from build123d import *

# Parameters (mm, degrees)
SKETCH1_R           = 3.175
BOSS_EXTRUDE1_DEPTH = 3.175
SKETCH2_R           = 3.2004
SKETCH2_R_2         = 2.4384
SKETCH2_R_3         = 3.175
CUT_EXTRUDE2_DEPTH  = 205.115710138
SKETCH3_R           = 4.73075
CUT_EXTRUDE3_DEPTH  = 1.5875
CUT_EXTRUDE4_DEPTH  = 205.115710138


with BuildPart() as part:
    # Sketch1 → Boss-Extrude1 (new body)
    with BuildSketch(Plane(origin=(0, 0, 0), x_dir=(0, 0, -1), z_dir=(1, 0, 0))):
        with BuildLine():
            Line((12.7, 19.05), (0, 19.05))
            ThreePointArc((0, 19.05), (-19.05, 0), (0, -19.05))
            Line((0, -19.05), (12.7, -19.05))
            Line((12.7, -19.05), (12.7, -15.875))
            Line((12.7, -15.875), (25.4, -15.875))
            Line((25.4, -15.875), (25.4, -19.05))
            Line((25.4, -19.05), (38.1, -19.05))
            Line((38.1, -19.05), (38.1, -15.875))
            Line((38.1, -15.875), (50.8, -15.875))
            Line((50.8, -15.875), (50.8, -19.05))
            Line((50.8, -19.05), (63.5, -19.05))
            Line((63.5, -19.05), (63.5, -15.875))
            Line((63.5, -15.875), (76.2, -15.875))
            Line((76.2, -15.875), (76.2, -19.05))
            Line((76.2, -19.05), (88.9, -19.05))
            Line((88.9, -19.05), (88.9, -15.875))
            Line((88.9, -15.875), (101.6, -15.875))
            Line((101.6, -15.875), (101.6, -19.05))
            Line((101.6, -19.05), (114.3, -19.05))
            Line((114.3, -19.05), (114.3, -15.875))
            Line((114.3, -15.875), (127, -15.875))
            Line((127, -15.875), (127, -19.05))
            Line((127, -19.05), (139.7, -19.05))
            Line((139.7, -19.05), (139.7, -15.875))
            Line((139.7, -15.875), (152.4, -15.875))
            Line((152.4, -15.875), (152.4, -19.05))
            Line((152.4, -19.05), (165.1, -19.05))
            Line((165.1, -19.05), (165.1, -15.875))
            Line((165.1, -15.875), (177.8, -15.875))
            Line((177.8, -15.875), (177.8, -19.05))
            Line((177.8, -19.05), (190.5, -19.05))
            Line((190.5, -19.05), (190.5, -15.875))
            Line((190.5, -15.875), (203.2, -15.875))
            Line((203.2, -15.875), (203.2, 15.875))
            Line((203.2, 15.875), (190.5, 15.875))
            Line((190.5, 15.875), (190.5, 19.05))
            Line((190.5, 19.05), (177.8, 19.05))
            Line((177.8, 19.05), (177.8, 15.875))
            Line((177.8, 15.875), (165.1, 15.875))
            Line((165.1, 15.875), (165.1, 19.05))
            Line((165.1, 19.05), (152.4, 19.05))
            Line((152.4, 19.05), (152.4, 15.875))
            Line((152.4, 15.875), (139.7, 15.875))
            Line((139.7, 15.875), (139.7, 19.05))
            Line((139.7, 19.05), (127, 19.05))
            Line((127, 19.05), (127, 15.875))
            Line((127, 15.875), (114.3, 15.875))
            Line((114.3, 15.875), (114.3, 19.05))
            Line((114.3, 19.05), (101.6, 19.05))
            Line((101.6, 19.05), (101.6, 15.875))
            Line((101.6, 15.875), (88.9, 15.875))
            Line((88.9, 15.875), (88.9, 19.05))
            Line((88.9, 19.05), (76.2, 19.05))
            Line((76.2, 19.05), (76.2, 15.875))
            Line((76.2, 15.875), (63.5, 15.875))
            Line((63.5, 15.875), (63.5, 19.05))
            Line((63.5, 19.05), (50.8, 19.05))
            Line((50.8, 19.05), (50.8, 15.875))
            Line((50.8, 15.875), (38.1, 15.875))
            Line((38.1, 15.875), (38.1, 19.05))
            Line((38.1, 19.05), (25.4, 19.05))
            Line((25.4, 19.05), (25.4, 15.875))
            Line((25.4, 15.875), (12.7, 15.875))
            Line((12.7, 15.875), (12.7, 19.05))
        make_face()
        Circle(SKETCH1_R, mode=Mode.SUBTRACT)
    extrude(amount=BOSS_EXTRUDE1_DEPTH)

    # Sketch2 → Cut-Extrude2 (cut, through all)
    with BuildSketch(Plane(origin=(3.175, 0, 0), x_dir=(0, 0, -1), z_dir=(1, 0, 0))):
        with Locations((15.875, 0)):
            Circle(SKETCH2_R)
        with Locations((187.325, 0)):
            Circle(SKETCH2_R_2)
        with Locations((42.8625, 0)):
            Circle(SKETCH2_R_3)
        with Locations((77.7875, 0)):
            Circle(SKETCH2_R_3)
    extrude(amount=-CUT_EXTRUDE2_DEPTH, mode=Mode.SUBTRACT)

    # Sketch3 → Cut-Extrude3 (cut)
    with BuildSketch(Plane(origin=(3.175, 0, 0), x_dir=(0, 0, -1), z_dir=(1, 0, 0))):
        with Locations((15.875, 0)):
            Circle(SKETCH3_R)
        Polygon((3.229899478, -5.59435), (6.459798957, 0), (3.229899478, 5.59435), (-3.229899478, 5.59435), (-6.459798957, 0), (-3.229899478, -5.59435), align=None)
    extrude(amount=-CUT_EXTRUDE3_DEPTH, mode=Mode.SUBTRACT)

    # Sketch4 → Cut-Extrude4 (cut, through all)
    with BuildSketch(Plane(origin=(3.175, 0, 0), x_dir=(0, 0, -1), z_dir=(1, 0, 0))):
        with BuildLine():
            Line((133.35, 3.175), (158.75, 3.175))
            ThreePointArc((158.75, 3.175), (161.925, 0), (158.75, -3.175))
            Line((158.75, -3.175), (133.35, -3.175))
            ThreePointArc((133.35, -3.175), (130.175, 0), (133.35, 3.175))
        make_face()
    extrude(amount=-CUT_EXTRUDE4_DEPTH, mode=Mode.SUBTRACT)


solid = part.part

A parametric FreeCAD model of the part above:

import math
import FreeCAD as App
import Part
import Sketcher
Q = App.Units.Quantity

doc = App.newDocument("Part")
body = doc.addObject("PartDesign::Body", "Body")

sketch1 = body.newObject("Sketcher::SketchObject", "Sketch")
sketch1.AttachmentSupport = (doc.getObject("YZ_Plane"), [""])
sketch1.MapMode = "FlatFace"
sketch1.addGeometry([
    Part.LineSegment(App.Vector(19.1, -12.7, 0), App.Vector(19.1, 0, 0)),
    Part.ArcOfCircle(Part.Circle(App.Vector(0, 0, 0), App.Vector(0, 0, 1), 19.1), math.radians(0), math.radians(180)),
    Part.LineSegment(App.Vector(-19.1, 0, 0), App.Vector(-19.1, -12.7, 0)),
    Part.LineSegment(App.Vector(-19.1, -12.7, 0), App.Vector(-15.9, -12.7, 0)),
    Part.LineSegment(App.Vector(-15.9, -12.7, 0), App.Vector(-15.9, -25.4, 0)),
    Part.LineSegment(App.Vector(-15.9, -25.4, 0), App.Vector(-19.1, -25.4, 0)),
    Part.LineSegment(App.Vector(-19.1, -25.4, 0), App.Vector(-19.1, -38.1, 0)),
    Part.LineSegment(App.Vector(-19.1, -38.1, 0), App.Vector(-15.9, -38.1, 0)),
    Part.LineSegment(App.Vector(-15.9, -38.1, 0), App.Vector(-15.9, -50.8, 0)),
    Part.LineSegment(App.Vector(-15.9, -50.8, 0), App.Vector(-19.1, -50.8, 0)),
    Part.LineSegment(App.Vector(-19.1, -50.8, 0), App.Vector(-19.1, -63.5, 0)),
    Part.LineSegment(App.Vector(-19.1, -63.5, 0), App.Vector(-15.9, -63.5, 0)),
    Part.LineSegment(App.Vector(-15.9, -63.5, 0), App.Vector(-15.9, -76.2, 0)),
    Part.LineSegment(App.Vector(-15.9, -76.2, 0), App.Vector(-19.1, -76.2, 0)),
    Part.LineSegment(App.Vector(-19.1, -76.2, 0), App.Vector(-19.1, -88.9, 0)),
    Part.LineSegment(App.Vector(-19.1, -88.9, 0), App.Vector(-15.9, -88.9, 0)),
    Part.LineSegment(App.Vector(-15.9, -88.9, 0), App.Vector(-15.9, -101.6, 0)),
    Part.LineSegment(App.Vector(-15.9, -101.6, 0), App.Vector(-19.1, -101.6, 0)),
    Part.LineSegment(App.Vector(-19.1, -101.6, 0), App.Vector(-19.1, -114.3, 0)),
    Part.LineSegment(App.Vector(-19.1, -114.3, 0), App.Vector(-15.9, -114.3, 0)),
    Part.LineSegment(App.Vector(-15.9, -114.3, 0), App.Vector(-15.9, -127, 0)),
    Part.LineSegment(App.Vector(-15.9, -127, 0), App.Vector(-19.1, -127, 0)),
    Part.LineSegment(App.Vector(-19.1, -127, 0), App.Vector(-19.1, -139.7, 0)),
    Part.LineSegment(App.Vector(-19.1, -139.7, 0), App.Vector(-15.9, -139.7, 0)),
    Part.LineSegment(App.Vector(-15.9, -139.7, 0), App.Vector(-15.9, -152.4, 0)),
    Part.LineSegment(App.Vector(-15.9, -152.4, 0), App.Vector(-19.1, -152.4, 0)),
    Part.LineSegment(App.Vector(-19.1, -152.4, 0), App.Vector(-19.1, -165.1, 0)),
    Part.LineSegment(App.Vector(-19.1, -165.1, 0), App.Vector(-15.9, -165.1, 0)),
    Part.LineSegment(App.Vector(-15.9, -165.1, 0), App.Vector(-15.9, -177.8, 0)),
    Part.LineSegment(App.Vector(-15.9, -177.8, 0), App.Vector(-19.1, -177.8, 0)),
    Part.LineSegment(App.Vector(-19.1, -177.8, 0), App.Vector(-19.1, -190.5, 0)),
    Part.LineSegment(App.Vector(-19.1, -190.5, 0), App.Vector(-15.9, -190.5, 0)),
    Part.LineSegment(App.Vector(-15.9, -190.5, 0), App.Vector(-15.9, -203.2, 0)),
    Part.LineSegment(App.Vector(-15.9, -203.2, 0), App.Vector(15.9, -203.2, 0)),
    Part.LineSegment(App.Vector(15.9, -203.2, 0), App.Vector(15.9, -190.5, 0)),
    Part.LineSegment(App.Vector(15.9, -190.5, 0), App.Vector(19.1, -190.5, 0)),
    Part.LineSegment(App.Vector(19.1, -190.5, 0), App.Vector(19.1, -177.8, 0)),
    Part.LineSegment(App.Vector(19.1, -177.8, 0), App.Vector(15.9, -177.8, 0)),
    Part.LineSegment(App.Vector(15.9, -177.8, 0), App.Vector(15.9, -165.1, 0)),
    Part.LineSegment(App.Vector(15.9, -165.1, 0), App.Vector(19.1, -165.1, 0)),
    Part.LineSegment(App.Vector(19.1, -165.1, 0), App.Vector(19.1, -152.4, 0)),
    Part.LineSegment(App.Vector(19.1, -152.4, 0), App.Vector(15.9, -152.4, 0)),
    Part.LineSegment(App.Vector(15.9, -152.4, 0), App.Vector(15.9, -139.7, 0)),
    Part.LineSegment(App.Vector(15.9, -139.7, 0), App.Vector(19.1, -139.7, 0)),
    Part.LineSegment(App.Vector(19.1, -139.7, 0), App.Vector(19.1, -127, 0)),
    Part.LineSegment(App.Vector(19.1, -127, 0), App.Vector(15.9, -127, 0)),
    Part.LineSegment(App.Vector(15.9, -127, 0), App.Vector(15.9, -114.3, 0)),
    Part.LineSegment(App.Vector(15.9, -114.3, 0), App.Vector(19.1, -114.3, 0)),
    Part.LineSegment(App.Vector(19.1, -114.3, 0), App.Vector(19.1, -101.6, 0)),
    Part.LineSegment(App.Vector(19.1, -101.6, 0), App.Vector(15.9, -101.6, 0)),
    Part.LineSegment(App.Vector(15.9, -101.6, 0), App.Vector(15.9, -88.9, 0)),
    Part.LineSegment(App.Vector(15.9, -88.9, 0), App.Vector(19.1, -88.9, 0)),
    Part.LineSegment(App.Vector(19.1, -88.9, 0), App.Vector(19.1, -76.2, 0)),
    Part.LineSegment(App.Vector(19.1, -76.2, 0), App.Vector(15.9, -76.2, 0)),
    Part.LineSegment(App.Vector(15.9, -76.2, 0), App.Vector(15.9, -63.5, 0)),
    Part.LineSegment(App.Vector(15.9, -63.5, 0), App.Vector(19.1, -63.5, 0)),
    Part.LineSegment(App.Vector(19.1, -63.5, 0), App.Vector(19.1, -50.8, 0)),
    Part.LineSegment(App.Vector(19.1, -50.8, 0), App.Vector(15.9, -50.8, 0)),
    Part.LineSegment(App.Vector(15.9, -50.8, 0), App.Vector(15.9, -38.1, 0)),
    Part.LineSegment(App.Vector(15.9, -38.1, 0), App.Vector(19.1, -38.1, 0)),
    Part.LineSegment(App.Vector(19.1, -38.1, 0), App.Vector(19.1, -25.4, 0)),
    Part.LineSegment(App.Vector(19.1, -25.4, 0), App.Vector(15.9, -25.4, 0)),
    Part.LineSegment(App.Vector(15.9, -25.4, 0), App.Vector(15.9, -12.7, 0)),
    Part.LineSegment(App.Vector(15.9, -12.7, 0), App.Vector(19.1, -12.7, 0)),
    Part.Circle(App.Vector(0, 0, 0), App.Vector(0, 0, 1), 3.2),
], False)
sketch1.addConstraint([
    Sketcher.Constraint("Tangent", 0, 2, 1, 1),
    Sketcher.Constraint("Tangent", 1, 2, 2, 1),
    Sketcher.Constraint("Coincident", 2, 2, 3, 1),
    Sketcher.Constraint("Coincident", 3, 2, 4, 1),
    Sketcher.Constraint("Coincident", 4, 2, 5, 1),
    Sketcher.Constraint("Coincident", 5, 2, 6, 1),
    Sketcher.Constraint("Coincident", 6, 2, 7, 1),
    Sketcher.Constraint("Coincident", 7, 2, 8, 1),
    Sketcher.Constraint("Coincident", 8, 2, 9, 1),
    Sketcher.Constraint("Coincident", 9, 2, 10, 1),
    Sketcher.Constraint("Coincident", 10, 2, 11, 1),
    Sketcher.Constraint("Coincident", 11, 2, 12, 1),
    Sketcher.Constraint("Coincident", 12, 2, 13, 1),
    Sketcher.Constraint("Coincident", 13, 2, 14, 1),
    Sketcher.Constraint("Coincident", 14, 2, 15, 1),
    Sketcher.Constraint("Coincident", 15, 2, 16, 1),
    Sketcher.Constraint("Coincident", 16, 2, 17, 1),
    Sketcher.Constraint("Coincident", 17, 2, 18, 1),
    Sketcher.Constraint("Coincident", 18, 2, 19, 1),
    Sketcher.Constraint("Coincident", 19, 2, 20, 1),
    Sketcher.Constraint("Coincident", 20, 2, 21, 1),
    Sketcher.Constraint("Coincident", 21, 2, 22, 1),
    Sketcher.Constraint("Coincident", 22, 2, 23, 1),
    Sketcher.Constraint("Coincident", 23, 2, 24, 1),
    Sketcher.Constraint("Coincident", 24, 2, 25, 1),
    Sketcher.Constraint("Coincident", 25, 2, 26, 1),
    Sketcher.Constraint("Coincident", 26, 2, 27, 1),
    Sketcher.Constraint("Coincident", 27, 2, 28, 1),
    Sketcher.Constraint("Coincident", 28, 2, 29, 1),
    Sketcher.Constraint("Coincident", 29, 2, 30, 1),
    Sketcher.Constraint("Coincident", 30, 2, 31, 1),
    Sketcher.Constraint("Coincident", 31, 2, 32, 1),
    Sketcher.Constraint("Coincident", 32, 2, 33, 1),
    Sketcher.Constraint("Coincident", 33, 2, 34, 1),
    Sketcher.Constraint("Coincident", 34, 2, 35, 1),
    Sketcher.Constraint("Coincident", 35, 2, 36, 1),
    Sketcher.Constraint("Coincident", 36, 2, 37, 1),
    Sketcher.Constraint("Coincident", 37, 2, 38, 1),
    Sketcher.Constraint("Coincident", 38, 2, 39, 1),
    Sketcher.Constraint("Coincident", 39, 2, 40, 1),
    Sketcher.Constraint("Coincident", 40, 2, 41, 1),
    Sketcher.Constraint("Coincident", 41, 2, 42, 1),
    Sketcher.Constraint("Coincident", 42, 2, 43, 1),
    Sketcher.Constraint("Coincident", 43, 2, 44, 1),
    Sketcher.Constraint("Coincident", 44, 2, 45, 1),
    Sketcher.Constraint("Coincident", 45, 2, 46, 1),
    Sketcher.Constraint("Coincident", 46, 2, 47, 1),
    Sketcher.Constraint("Coincident", 47, 2, 48, 1),
    Sketcher.Constraint("Coincident", 48, 2, 49, 1),
    Sketcher.Constraint("Coincident", 49, 2, 50, 1),
    Sketcher.Constraint("Coincident", 50, 2, 51, 1),
    Sketcher.Constraint("Coincident", 51, 2, 52, 1),
    Sketcher.Constraint("Coincident", 52, 2, 53, 1),
    Sketcher.Constraint("Coincident", 53, 2, 54, 1),
    Sketcher.Constraint("Coincident", 54, 2, 55, 1),
    Sketcher.Constraint("Coincident", 55, 2, 56, 1),
    Sketcher.Constraint("Coincident", 56, 2, 57, 1),
    Sketcher.Constraint("Coincident", 57, 2, 58, 1),
    Sketcher.Constraint("Coincident", 58, 2, 59, 1),
    Sketcher.Constraint("Coincident", 59, 2, 60, 1),
    Sketcher.Constraint("Coincident", 60, 2, 61, 1),
    Sketcher.Constraint("Coincident", 61, 2, 62, 1),
    Sketcher.Constraint("Coincident", 62, 2, 63, 1),
    Sketcher.Constraint("Coincident", 63, 2, 0, 1),
    Sketcher.Constraint("Vertical", 0),
    Sketcher.Constraint("Vertical", 2),
    Sketcher.Constraint("Horizontal", 3),
    Sketcher.Constraint("Vertical", 4),
    Sketcher.Constraint("Horizontal", 5),
    Sketcher.Constraint("Vertical", 6),
    Sketcher.Constraint("Horizontal", 7),
    Sketcher.Constraint("Vertical", 8),
    Sketcher.Constraint("Horizontal", 9),
    Sketcher.Constraint("Vertical", 10),
    Sketcher.Constraint("Horizontal", 11),
    Sketcher.Constraint("Vertical", 12),
    Sketcher.Constraint("Horizontal", 13),
    Sketcher.Constraint("Vertical", 14),
    Sketcher.Constraint("Horizontal", 15),
    Sketcher.Constraint("Vertical", 16),
    Sketcher.Constraint("Horizontal", 17),
    Sketcher.Constraint("Vertical", 18),
    Sketcher.Constraint("Horizontal", 19),
    Sketcher.Constraint("Vertical", 20),
    Sketcher.Constraint("Horizontal", 21),
    Sketcher.Constraint("Vertical", 22),
    Sketcher.Constraint("Horizontal", 23),
    Sketcher.Constraint("Vertical", 24),
    Sketcher.Constraint("Horizontal", 25),
    Sketcher.Constraint("Vertical", 26),
    Sketcher.Constraint("Horizontal", 27),
    Sketcher.Constraint("Vertical", 28),
    Sketcher.Constraint("Horizontal", 29),
    Sketcher.Constraint("Vertical", 30),
    Sketcher.Constraint("Horizontal", 31),
    Sketcher.Constraint("Vertical", 32),
    Sketcher.Constraint("Horizontal", 33),
    Sketcher.Constraint("Vertical", 34),
    Sketcher.Constraint("Horizontal", 35),
    Sketcher.Constraint("Vertical", 36),
    Sketcher.Constraint("Horizontal", 37),
    Sketcher.Constraint("Vertical", 38),
    Sketcher.Constraint("Horizontal", 39),
    Sketcher.Constraint("Vertical", 40),
    Sketcher.Constraint("Horizontal", 41),
    Sketcher.Constraint("Vertical", 42),
    Sketcher.Constraint("Horizontal", 43),
    Sketcher.Constraint("Vertical", 44),
    Sketcher.Constraint("Horizontal", 45),
    Sketcher.Constraint("Vertical", 46),
    Sketcher.Constraint("Horizontal", 47),
    Sketcher.Constraint("Vertical", 48),
    Sketcher.Constraint("Horizontal", 49),
    Sketcher.Constraint("Vertical", 50),
    Sketcher.Constraint("Horizontal", 51),
    Sketcher.Constraint("Vertical", 52),
    Sketcher.Constraint("Horizontal", 53),
    Sketcher.Constraint("Vertical", 54),
    Sketcher.Constraint("Horizontal", 55),
    Sketcher.Constraint("Vertical", 56),
    Sketcher.Constraint("Horizontal", 57),
    Sketcher.Constraint("Vertical", 58),
    Sketcher.Constraint("Horizontal", 59),
    Sketcher.Constraint("Vertical", 60),
    Sketcher.Constraint("Horizontal", 61),
    Sketcher.Constraint("Vertical", 62),
    Sketcher.Constraint("Horizontal", 63),
    Sketcher.Constraint("Coincident", 1, 3, -1, 1),
    Sketcher.Constraint("Coincident", 64, 3, -1, 1),
    Sketcher.Constraint("Symmetric", 31, 2, 34, 2, -2),
    Sketcher.Constraint("Symmetric", 29, 2, 36, 2, -2),
    Sketcher.Constraint("Symmetric", 27, 2, 38, 2, -2),
    Sketcher.Constraint("Symmetric", 25, 2, 40, 2, -2),
    Sketcher.Constraint("Symmetric", 23, 2, 42, 2, -2),
    Sketcher.Constraint("Symmetric", 21, 2, 44, 2, -2),
    Sketcher.Constraint("Symmetric", 19, 2, 46, 2, -2),
    Sketcher.Constraint("Symmetric", 17, 2, 48, 2, -2),
    Sketcher.Constraint("Symmetric", 15, 2, 50, 2, -2),
    Sketcher.Constraint("Symmetric", 13, 2, 52, 2, -2),
    Sketcher.Constraint("Symmetric", 11, 2, 54, 2, -2),
    Sketcher.Constraint("Symmetric", 9, 2, 56, 2, -2),
    Sketcher.Constraint("Symmetric", 7, 2, 58, 2, -2),
    Sketcher.Constraint("Symmetric", 5, 2, 60, 2, -2),
    Sketcher.Constraint("Symmetric", 3, 2, 62, 2, -2),
    Sketcher.Constraint("Vertical", 2, 2, 5, 2),
    Sketcher.Constraint("Vertical", 4, 2, 7, 2),
    Sketcher.Constraint("Vertical", 6, 2, 9, 2),
    Sketcher.Constraint("Vertical", 8, 2, 11, 2),
    Sketcher.Constraint("Vertical", 10, 2, 13, 2),
    Sketcher.Constraint("Vertical", 12, 2, 15, 2),
    Sketcher.Constraint("Vertical", 14, 2, 17, 2),
    Sketcher.Constraint("Vertical", 16, 2, 19, 2),
    Sketcher.Constraint("Vertical", 18, 2, 21, 2),
    Sketcher.Constraint("Vertical", 20, 2, 23, 2),
    Sketcher.Constraint("Vertical", 22, 2, 25, 2),
    Sketcher.Constraint("Vertical", 24, 2, 27, 2),
    Sketcher.Constraint("Vertical", 26, 2, 29, 2),
    Sketcher.Constraint("Vertical", 28, 2, 31, 2),
    Sketcher.Constraint("Equal", 2, 4),
    Sketcher.Constraint("Equal", 4, 6),
    Sketcher.Constraint("Equal", 6, 8),
    Sketcher.Constraint("Equal", 8, 10),
    Sketcher.Constraint("Equal", 10, 12),
    Sketcher.Constraint("Equal", 12, 14),
    Sketcher.Constraint("Equal", 14, 16),
    Sketcher.Constraint("Equal", 16, 18),
    Sketcher.Constraint("Equal", 18, 20),
    Sketcher.Constraint("Equal", 20, 22),
    Sketcher.Constraint("Equal", 22, 24),
    Sketcher.Constraint("Equal", 24, 26),
    Sketcher.Constraint("Equal", 26, 28),
    Sketcher.Constraint("Equal", 28, 30),
    Sketcher.Constraint("Equal", 30, 32),
    Sketcher.Constraint("Diameter", 64, Q("0.25 in")),
    Sketcher.Constraint("Radius", 1, Q("0.75 in")),
    Sketcher.Constraint("DistanceY", 0, 1, 0, 2, Q("0.5 in")),
    Sketcher.Constraint("DistanceX", 33, 1, 33, 2, Q("1.25 in")),
])
pad1 = body.newObject("PartDesign::Pad", "Pad")
pad1.Profile = sketch1
pad1.Length = Q("0.125 in")

sketch2 = body.newObject("Sketcher::SketchObject", "Sketch001")
sketch2.AttachmentSupport = (doc.getObject("YZ_Plane"), [""])
sketch2.MapMode = "FlatFace"
sketch2.AttachmentOffset = App.Placement(App.Vector(0, 0, 0.125 * 25.4), App.Rotation())
sketch2.addGeometry([
    Part.Circle(App.Vector(0, -15.9, 0), App.Vector(0, 0, 1), 3.2),
    Part.Circle(App.Vector(0, -187.3, 0), App.Vector(0, 0, 1), 2.4),
    Part.Circle(App.Vector(0, -42.9, 0), App.Vector(0, 0, 1), 3.2),
    Part.Circle(App.Vector(0, -77.8, 0), App.Vector(0, 0, 1), 3.2),
], False)
sketch2.addConstraint([
    Sketcher.Constraint("Equal", 2, 3),
    Sketcher.Constraint("PointOnObject", 0, 3, -2),
    Sketcher.Constraint("PointOnObject", 1, 3, -2),
    Sketcher.Constraint("PointOnObject", 2, 3, -2),
    Sketcher.Constraint("PointOnObject", 3, 3, -2),
    Sketcher.Constraint("Diameter", 2, Q("0.25 in")),
    Sketcher.Constraint("Diameter", 0, Q("0.252 in")),
    Sketcher.Constraint("Diameter", 1, Q("0.192 in")),
    Sketcher.Constraint("DistanceY", 1, 3, 0, 3, Q("6.75 in")),
    Sketcher.Constraint("DistanceY", 0, 3, -1, 1, Q("0.625 in")),
    Sketcher.Constraint("DistanceY", 2, 3, -1, 1, Q("1.6875 in")),
    Sketcher.Constraint("DistanceY", 3, 3, -1, 1, Q("3.0625 in")),
])
pocket1 = body.newObject("PartDesign::Pocket", "Pocket")
pocket1.Profile = sketch2
pocket1.Type = "ThroughAll"

sketch3 = body.newObject("Sketcher::SketchObject", "Sketch002")
sketch3.AttachmentSupport = (doc.getObject("YZ_Plane"), [""])
sketch3.MapMode = "FlatFace"
sketch3.AttachmentOffset = App.Placement(App.Vector(0, 0, 0.125 * 25.4), App.Rotation())
sketch3.addGeometry([
    Part.Circle(App.Vector(0, -15.9, 0), App.Vector(0, 0, 1), 4.7),
    Part.LineSegment(App.Vector(-5.6, -3.2, 0), App.Vector(0, -6.5, 0)),
    Part.LineSegment(App.Vector(0, -6.5, 0), App.Vector(5.6, -3.2, 0)),
    Part.LineSegment(App.Vector(5.6, -3.2, 0), App.Vector(5.6, 3.2, 0)),
    Part.LineSegment(App.Vector(5.6, 3.2, 0), App.Vector(0, 6.5, 0)),
    Part.LineSegment(App.Vector(0, 6.5, 0), App.Vector(-5.6, 3.2, 0)),
    Part.LineSegment(App.Vector(-5.6, 3.2, 0), App.Vector(-5.6, -3.2, 0)),
], False)
sketch3.addConstraint([
    Sketcher.Constraint("Coincident", 1, 2, 2, 1),
    Sketcher.Constraint("Coincident", 2, 2, 3, 1),
    Sketcher.Constraint("Coincident", 3, 2, 4, 1),
    Sketcher.Constraint("Coincident", 4, 2, 5, 1),
    Sketcher.Constraint("Coincident", 5, 2, 6, 1),
    Sketcher.Constraint("Coincident", 6, 2, 1, 1),
    Sketcher.Constraint("Vertical", 3),
    Sketcher.Constraint("Vertical", 6),
    Sketcher.Constraint("Symmetric", 1, 2, 4, 2, -1, 1),
    Sketcher.Constraint("Symmetric", 2, 2, 5, 2, -1, 1),
    Sketcher.Constraint("PointOnObject", 0, 3, -2),
    Sketcher.Constraint("PointOnObject", 1, 2, -2),
    Sketcher.Constraint("Parallel", 1, 4),
    Sketcher.Constraint("Horizontal", 3, 2, 5, 2),
    Sketcher.Constraint("Angle", 1, Q("-30 deg")),
    Sketcher.Constraint("Diameter", 0, Q("0.3725 in")),
    Sketcher.Constraint("DistanceY", 0, 3, -1, 1, Q("0.625 in")),
    Sketcher.Constraint("DistanceY", 3, 1, 3, 2, Q("6.459799 mm")),
    Sketcher.Constraint("DistanceX", 5, 2, 3, 2, Q("0.4405 in")),
])
pocket2 = body.newObject("PartDesign::Pocket", "Pocket001")
pocket2.Profile = sketch3
pocket2.Length = Q("0.0625 in")

sketch4 = body.newObject("Sketcher::SketchObject", "Sketch003")
sketch4.AttachmentSupport = (doc.getObject("YZ_Plane"), [""])
sketch4.MapMode = "FlatFace"
sketch4.AttachmentOffset = App.Placement(App.Vector(0, 0, 0.125 * 25.4), App.Rotation())
sketch4.addGeometry([
    Part.LineSegment(App.Vector(3.2, -158.8, 0), App.Vector(3.2, -133.3, 0)),
    Part.ArcOfCircle(Part.Circle(App.Vector(0, -133.3, 0), App.Vector(0, 0, 1), 3.2), math.radians(0), math.radians(180)),
    Part.LineSegment(App.Vector(-3.2, -133.3, 0), App.Vector(-3.2, -158.8, 0)),
    Part.ArcOfCircle(Part.Circle(App.Vector(0, -158.8, 0), App.Vector(0, 0, 1), 3.2), math.radians(180), math.radians(360)),
], False)
sketch4.addConstraint([
    Sketcher.Constraint("Tangent", 0, 2, 1, 1),
    Sketcher.Constraint("Tangent", 1, 2, 2, 1),
    Sketcher.Constraint("Tangent", 2, 2, 3, 1),
    Sketcher.Constraint("Tangent", 3, 2, 0, 1),
    Sketcher.Constraint("Vertical", 0),
    Sketcher.Constraint("Vertical", 2),
    Sketcher.Constraint("PointOnObject", 1, 3, -2),
    Sketcher.Constraint("DistanceY", 0, 1, 0, 2, Q("1 in")),
    Sketcher.Constraint("Radius", 1, Q("0.125 in")),
    Sketcher.Constraint("DistanceY", 1, 3, -1, 1, Q("5.25 in")),
])
pocket3 = body.newObject("PartDesign::Pocket", "Pocket002")
pocket3.Profile = sketch4
pocket3.Type = "ThroughAll"

doc.recompute()
